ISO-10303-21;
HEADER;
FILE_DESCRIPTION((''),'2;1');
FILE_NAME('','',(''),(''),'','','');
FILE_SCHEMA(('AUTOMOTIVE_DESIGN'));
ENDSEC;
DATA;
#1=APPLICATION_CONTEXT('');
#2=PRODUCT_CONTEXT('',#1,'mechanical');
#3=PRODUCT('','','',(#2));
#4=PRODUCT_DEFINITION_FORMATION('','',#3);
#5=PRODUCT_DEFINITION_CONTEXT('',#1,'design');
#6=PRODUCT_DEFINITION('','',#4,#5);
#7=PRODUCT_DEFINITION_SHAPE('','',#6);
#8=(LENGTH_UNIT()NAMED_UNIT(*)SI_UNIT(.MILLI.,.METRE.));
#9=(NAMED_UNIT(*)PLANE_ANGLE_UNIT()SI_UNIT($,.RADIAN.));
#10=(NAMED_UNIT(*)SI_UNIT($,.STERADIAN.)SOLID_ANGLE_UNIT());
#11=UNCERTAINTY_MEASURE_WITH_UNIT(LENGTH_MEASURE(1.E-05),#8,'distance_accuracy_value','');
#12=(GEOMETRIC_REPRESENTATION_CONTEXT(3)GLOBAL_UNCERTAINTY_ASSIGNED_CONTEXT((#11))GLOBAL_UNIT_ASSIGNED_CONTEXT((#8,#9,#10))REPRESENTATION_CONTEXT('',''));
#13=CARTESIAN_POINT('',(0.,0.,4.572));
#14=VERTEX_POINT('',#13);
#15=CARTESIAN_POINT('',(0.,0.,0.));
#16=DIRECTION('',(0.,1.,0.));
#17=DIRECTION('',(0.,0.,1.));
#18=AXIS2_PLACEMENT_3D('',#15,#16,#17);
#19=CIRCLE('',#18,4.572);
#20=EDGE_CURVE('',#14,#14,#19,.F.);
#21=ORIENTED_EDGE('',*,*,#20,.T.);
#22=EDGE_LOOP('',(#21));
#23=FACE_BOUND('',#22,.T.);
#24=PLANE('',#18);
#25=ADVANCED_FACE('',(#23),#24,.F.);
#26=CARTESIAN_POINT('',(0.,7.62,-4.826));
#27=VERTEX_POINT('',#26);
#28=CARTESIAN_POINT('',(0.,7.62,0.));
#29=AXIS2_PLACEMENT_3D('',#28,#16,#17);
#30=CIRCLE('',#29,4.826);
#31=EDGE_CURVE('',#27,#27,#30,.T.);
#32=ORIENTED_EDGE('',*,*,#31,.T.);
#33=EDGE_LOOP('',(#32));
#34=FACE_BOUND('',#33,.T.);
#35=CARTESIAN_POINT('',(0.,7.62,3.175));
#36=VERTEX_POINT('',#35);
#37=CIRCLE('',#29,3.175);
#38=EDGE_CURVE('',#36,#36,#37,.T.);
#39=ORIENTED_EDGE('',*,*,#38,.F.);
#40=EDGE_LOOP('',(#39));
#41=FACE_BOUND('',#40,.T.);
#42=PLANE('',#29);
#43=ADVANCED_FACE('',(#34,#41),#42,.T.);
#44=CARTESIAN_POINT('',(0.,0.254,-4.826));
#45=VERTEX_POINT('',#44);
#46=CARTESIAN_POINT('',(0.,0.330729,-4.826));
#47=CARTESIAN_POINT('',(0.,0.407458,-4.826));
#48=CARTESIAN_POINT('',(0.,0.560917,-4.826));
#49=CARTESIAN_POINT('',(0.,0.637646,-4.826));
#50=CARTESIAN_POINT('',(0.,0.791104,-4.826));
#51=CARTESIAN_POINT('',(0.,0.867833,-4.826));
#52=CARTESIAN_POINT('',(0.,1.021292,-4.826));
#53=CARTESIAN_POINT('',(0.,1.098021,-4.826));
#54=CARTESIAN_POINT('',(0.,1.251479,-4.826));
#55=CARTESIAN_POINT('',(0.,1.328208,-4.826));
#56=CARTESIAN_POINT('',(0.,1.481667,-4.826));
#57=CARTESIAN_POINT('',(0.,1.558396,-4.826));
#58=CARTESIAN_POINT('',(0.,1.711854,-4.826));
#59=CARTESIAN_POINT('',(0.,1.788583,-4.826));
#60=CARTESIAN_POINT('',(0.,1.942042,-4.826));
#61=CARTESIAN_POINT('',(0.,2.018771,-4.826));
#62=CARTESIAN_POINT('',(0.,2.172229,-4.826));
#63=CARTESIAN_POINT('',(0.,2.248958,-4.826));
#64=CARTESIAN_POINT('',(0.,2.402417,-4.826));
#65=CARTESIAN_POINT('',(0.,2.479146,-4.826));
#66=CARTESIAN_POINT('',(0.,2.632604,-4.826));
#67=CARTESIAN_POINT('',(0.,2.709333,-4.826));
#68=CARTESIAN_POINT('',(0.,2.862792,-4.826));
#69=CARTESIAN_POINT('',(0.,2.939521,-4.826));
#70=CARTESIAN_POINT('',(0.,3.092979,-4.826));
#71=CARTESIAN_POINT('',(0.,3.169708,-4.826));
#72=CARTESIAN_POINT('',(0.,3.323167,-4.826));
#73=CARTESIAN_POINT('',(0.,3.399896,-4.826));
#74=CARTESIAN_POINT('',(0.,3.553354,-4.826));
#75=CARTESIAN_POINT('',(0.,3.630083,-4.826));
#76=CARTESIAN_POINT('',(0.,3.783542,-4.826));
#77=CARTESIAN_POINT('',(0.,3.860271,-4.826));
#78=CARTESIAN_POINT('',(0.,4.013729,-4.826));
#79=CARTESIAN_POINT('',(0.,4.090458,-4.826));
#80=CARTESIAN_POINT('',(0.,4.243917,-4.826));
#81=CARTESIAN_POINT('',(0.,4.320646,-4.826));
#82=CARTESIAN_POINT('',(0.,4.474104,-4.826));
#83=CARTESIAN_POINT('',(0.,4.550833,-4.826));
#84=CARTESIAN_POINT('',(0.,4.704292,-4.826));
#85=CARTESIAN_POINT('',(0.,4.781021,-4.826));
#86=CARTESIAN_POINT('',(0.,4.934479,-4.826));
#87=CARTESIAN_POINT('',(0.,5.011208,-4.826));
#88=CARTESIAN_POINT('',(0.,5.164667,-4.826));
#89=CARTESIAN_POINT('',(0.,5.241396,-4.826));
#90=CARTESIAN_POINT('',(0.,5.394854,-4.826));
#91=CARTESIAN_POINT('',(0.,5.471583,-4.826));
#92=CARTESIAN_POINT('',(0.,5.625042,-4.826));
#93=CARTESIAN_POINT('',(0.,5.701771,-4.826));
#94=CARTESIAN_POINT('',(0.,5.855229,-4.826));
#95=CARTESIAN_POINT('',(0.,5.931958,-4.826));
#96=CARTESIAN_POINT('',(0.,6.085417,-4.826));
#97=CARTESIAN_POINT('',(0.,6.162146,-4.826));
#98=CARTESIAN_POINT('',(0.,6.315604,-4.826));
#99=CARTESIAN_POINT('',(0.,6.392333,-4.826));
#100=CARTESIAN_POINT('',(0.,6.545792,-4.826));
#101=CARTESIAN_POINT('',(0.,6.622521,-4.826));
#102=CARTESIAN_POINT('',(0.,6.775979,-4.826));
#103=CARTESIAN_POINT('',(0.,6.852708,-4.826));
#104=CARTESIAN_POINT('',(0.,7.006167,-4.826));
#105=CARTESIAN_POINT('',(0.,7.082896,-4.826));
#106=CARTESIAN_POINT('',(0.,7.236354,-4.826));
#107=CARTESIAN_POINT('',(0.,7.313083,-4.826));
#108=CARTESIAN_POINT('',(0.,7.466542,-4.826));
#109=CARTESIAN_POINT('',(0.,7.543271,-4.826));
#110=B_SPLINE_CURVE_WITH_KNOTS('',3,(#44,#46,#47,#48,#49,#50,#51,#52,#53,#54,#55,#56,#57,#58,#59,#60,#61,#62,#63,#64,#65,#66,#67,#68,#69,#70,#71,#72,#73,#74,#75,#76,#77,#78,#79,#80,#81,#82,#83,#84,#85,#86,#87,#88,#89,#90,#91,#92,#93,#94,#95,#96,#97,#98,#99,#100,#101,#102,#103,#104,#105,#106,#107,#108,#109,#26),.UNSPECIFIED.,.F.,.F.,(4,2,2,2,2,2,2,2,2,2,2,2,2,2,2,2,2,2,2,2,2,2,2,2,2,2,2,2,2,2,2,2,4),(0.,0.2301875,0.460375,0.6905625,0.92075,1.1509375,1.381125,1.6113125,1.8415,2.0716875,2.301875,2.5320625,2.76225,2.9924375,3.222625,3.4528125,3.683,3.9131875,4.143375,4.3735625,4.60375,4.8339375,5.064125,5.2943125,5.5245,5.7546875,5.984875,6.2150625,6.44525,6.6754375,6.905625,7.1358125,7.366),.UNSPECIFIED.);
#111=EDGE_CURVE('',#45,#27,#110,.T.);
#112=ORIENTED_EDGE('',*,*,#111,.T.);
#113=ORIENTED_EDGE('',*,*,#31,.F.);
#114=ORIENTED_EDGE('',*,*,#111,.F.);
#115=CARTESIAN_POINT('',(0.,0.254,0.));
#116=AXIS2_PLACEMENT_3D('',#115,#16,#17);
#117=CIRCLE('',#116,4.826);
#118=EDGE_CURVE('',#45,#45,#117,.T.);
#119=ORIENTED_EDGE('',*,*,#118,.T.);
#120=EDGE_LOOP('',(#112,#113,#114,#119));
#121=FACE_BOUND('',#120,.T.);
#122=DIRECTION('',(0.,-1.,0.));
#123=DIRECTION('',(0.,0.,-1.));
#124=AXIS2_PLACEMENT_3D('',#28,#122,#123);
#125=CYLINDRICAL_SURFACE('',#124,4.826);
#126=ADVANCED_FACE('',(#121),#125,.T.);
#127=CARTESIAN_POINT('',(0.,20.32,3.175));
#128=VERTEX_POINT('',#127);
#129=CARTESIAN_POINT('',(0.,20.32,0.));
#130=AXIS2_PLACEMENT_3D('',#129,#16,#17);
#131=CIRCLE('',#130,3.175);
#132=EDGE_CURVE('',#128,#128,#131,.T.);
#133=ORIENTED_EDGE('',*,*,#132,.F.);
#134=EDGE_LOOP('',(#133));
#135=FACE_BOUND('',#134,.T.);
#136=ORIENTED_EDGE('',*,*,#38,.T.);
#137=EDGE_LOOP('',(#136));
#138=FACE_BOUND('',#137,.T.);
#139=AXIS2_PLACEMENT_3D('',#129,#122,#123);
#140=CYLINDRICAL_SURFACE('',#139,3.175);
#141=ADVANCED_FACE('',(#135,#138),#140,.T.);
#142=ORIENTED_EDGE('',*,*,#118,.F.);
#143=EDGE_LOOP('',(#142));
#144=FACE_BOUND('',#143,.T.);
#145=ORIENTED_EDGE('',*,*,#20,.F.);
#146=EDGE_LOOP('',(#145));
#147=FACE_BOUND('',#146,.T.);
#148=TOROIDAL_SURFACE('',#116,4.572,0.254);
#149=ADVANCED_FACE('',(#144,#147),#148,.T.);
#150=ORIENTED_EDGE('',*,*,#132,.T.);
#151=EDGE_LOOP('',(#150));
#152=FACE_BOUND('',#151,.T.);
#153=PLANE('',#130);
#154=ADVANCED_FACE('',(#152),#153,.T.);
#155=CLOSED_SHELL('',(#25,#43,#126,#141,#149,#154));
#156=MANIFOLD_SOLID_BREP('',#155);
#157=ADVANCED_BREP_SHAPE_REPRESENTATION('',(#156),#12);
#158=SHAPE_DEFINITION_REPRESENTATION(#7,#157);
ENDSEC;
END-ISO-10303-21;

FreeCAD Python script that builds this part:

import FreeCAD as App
import Part
import Sketcher
from FreeCAD import Vector
Q = App.Units.Quantity


def edges_at(feature, points):
    """Names of the edges that pass closest to the given points."""
    edges = feature.Shape.Edges
    near = lambda p: min(range(len(edges)), key=lambda i: edges[i].distToShape(Part.Vertex(*p))[0])
    return sorted({f"Edge{near(p) + 1}" for p in points})

doc = App.newDocument("Part")
body = doc.addObject("PartDesign::Body", "Body")

sketch1 = body.newObject("Sketcher::SketchObject", "Sketch")
sketch1.AttachmentSupport = (doc.getObject("XZ_Plane"), [""])
sketch1.MapMode = "FlatFace"
sketch1.addGeometry(Part.Circle(Vector(0, 0, 0), Vector(0, 0, 1), 4.8), False)
sketch1.addConstraint([
    Sketcher.Constraint("Coincident", 0, 3, -1, 1),
    Sketcher.Constraint("Diameter", 0, Q("0.38 in")),
])
pad1 = body.newObject("PartDesign::Pad", "Pad")
pad1.Profile = sketch1
pad1.Length = Q("0.3 in")
pad1.Reversed = True

sketch2 = body.newObject("Sketcher::SketchObject", "Sketch001")
sketch2.AttachmentSupport = (doc.getObject("XZ_Plane"), [""])
sketch2.MapMode = "FlatFace"
sketch2.AttachmentOffset = App.Placement(Vector(0, 0, -0.3 * 25.4), App.Rotation())
sketch2.addGeometry(Part.Circle(Vector(0, 0, 0), Vector(0, 0, 1), 3.2), False)
sketch2.addConstraint([
    Sketcher.Constraint("Coincident", 0, 3, -1, 1),
    Sketcher.Constraint("Diameter", 0, Q("0.25 in")),
])
pad2 = body.newObject("PartDesign::Pad", "Pad001")
pad2.Profile = sketch2
pad2.Length = Q("0.5 in")
pad2.Reversed = True
doc.recompute()

fillet = body.newObject("PartDesign::Fillet", "Fillet")
fillet.Base = (pad2, edges_at(pad2, [(0, 0, 4.826)]))
fillet.Radius = Q("0.01 in")

doc.recompute()
